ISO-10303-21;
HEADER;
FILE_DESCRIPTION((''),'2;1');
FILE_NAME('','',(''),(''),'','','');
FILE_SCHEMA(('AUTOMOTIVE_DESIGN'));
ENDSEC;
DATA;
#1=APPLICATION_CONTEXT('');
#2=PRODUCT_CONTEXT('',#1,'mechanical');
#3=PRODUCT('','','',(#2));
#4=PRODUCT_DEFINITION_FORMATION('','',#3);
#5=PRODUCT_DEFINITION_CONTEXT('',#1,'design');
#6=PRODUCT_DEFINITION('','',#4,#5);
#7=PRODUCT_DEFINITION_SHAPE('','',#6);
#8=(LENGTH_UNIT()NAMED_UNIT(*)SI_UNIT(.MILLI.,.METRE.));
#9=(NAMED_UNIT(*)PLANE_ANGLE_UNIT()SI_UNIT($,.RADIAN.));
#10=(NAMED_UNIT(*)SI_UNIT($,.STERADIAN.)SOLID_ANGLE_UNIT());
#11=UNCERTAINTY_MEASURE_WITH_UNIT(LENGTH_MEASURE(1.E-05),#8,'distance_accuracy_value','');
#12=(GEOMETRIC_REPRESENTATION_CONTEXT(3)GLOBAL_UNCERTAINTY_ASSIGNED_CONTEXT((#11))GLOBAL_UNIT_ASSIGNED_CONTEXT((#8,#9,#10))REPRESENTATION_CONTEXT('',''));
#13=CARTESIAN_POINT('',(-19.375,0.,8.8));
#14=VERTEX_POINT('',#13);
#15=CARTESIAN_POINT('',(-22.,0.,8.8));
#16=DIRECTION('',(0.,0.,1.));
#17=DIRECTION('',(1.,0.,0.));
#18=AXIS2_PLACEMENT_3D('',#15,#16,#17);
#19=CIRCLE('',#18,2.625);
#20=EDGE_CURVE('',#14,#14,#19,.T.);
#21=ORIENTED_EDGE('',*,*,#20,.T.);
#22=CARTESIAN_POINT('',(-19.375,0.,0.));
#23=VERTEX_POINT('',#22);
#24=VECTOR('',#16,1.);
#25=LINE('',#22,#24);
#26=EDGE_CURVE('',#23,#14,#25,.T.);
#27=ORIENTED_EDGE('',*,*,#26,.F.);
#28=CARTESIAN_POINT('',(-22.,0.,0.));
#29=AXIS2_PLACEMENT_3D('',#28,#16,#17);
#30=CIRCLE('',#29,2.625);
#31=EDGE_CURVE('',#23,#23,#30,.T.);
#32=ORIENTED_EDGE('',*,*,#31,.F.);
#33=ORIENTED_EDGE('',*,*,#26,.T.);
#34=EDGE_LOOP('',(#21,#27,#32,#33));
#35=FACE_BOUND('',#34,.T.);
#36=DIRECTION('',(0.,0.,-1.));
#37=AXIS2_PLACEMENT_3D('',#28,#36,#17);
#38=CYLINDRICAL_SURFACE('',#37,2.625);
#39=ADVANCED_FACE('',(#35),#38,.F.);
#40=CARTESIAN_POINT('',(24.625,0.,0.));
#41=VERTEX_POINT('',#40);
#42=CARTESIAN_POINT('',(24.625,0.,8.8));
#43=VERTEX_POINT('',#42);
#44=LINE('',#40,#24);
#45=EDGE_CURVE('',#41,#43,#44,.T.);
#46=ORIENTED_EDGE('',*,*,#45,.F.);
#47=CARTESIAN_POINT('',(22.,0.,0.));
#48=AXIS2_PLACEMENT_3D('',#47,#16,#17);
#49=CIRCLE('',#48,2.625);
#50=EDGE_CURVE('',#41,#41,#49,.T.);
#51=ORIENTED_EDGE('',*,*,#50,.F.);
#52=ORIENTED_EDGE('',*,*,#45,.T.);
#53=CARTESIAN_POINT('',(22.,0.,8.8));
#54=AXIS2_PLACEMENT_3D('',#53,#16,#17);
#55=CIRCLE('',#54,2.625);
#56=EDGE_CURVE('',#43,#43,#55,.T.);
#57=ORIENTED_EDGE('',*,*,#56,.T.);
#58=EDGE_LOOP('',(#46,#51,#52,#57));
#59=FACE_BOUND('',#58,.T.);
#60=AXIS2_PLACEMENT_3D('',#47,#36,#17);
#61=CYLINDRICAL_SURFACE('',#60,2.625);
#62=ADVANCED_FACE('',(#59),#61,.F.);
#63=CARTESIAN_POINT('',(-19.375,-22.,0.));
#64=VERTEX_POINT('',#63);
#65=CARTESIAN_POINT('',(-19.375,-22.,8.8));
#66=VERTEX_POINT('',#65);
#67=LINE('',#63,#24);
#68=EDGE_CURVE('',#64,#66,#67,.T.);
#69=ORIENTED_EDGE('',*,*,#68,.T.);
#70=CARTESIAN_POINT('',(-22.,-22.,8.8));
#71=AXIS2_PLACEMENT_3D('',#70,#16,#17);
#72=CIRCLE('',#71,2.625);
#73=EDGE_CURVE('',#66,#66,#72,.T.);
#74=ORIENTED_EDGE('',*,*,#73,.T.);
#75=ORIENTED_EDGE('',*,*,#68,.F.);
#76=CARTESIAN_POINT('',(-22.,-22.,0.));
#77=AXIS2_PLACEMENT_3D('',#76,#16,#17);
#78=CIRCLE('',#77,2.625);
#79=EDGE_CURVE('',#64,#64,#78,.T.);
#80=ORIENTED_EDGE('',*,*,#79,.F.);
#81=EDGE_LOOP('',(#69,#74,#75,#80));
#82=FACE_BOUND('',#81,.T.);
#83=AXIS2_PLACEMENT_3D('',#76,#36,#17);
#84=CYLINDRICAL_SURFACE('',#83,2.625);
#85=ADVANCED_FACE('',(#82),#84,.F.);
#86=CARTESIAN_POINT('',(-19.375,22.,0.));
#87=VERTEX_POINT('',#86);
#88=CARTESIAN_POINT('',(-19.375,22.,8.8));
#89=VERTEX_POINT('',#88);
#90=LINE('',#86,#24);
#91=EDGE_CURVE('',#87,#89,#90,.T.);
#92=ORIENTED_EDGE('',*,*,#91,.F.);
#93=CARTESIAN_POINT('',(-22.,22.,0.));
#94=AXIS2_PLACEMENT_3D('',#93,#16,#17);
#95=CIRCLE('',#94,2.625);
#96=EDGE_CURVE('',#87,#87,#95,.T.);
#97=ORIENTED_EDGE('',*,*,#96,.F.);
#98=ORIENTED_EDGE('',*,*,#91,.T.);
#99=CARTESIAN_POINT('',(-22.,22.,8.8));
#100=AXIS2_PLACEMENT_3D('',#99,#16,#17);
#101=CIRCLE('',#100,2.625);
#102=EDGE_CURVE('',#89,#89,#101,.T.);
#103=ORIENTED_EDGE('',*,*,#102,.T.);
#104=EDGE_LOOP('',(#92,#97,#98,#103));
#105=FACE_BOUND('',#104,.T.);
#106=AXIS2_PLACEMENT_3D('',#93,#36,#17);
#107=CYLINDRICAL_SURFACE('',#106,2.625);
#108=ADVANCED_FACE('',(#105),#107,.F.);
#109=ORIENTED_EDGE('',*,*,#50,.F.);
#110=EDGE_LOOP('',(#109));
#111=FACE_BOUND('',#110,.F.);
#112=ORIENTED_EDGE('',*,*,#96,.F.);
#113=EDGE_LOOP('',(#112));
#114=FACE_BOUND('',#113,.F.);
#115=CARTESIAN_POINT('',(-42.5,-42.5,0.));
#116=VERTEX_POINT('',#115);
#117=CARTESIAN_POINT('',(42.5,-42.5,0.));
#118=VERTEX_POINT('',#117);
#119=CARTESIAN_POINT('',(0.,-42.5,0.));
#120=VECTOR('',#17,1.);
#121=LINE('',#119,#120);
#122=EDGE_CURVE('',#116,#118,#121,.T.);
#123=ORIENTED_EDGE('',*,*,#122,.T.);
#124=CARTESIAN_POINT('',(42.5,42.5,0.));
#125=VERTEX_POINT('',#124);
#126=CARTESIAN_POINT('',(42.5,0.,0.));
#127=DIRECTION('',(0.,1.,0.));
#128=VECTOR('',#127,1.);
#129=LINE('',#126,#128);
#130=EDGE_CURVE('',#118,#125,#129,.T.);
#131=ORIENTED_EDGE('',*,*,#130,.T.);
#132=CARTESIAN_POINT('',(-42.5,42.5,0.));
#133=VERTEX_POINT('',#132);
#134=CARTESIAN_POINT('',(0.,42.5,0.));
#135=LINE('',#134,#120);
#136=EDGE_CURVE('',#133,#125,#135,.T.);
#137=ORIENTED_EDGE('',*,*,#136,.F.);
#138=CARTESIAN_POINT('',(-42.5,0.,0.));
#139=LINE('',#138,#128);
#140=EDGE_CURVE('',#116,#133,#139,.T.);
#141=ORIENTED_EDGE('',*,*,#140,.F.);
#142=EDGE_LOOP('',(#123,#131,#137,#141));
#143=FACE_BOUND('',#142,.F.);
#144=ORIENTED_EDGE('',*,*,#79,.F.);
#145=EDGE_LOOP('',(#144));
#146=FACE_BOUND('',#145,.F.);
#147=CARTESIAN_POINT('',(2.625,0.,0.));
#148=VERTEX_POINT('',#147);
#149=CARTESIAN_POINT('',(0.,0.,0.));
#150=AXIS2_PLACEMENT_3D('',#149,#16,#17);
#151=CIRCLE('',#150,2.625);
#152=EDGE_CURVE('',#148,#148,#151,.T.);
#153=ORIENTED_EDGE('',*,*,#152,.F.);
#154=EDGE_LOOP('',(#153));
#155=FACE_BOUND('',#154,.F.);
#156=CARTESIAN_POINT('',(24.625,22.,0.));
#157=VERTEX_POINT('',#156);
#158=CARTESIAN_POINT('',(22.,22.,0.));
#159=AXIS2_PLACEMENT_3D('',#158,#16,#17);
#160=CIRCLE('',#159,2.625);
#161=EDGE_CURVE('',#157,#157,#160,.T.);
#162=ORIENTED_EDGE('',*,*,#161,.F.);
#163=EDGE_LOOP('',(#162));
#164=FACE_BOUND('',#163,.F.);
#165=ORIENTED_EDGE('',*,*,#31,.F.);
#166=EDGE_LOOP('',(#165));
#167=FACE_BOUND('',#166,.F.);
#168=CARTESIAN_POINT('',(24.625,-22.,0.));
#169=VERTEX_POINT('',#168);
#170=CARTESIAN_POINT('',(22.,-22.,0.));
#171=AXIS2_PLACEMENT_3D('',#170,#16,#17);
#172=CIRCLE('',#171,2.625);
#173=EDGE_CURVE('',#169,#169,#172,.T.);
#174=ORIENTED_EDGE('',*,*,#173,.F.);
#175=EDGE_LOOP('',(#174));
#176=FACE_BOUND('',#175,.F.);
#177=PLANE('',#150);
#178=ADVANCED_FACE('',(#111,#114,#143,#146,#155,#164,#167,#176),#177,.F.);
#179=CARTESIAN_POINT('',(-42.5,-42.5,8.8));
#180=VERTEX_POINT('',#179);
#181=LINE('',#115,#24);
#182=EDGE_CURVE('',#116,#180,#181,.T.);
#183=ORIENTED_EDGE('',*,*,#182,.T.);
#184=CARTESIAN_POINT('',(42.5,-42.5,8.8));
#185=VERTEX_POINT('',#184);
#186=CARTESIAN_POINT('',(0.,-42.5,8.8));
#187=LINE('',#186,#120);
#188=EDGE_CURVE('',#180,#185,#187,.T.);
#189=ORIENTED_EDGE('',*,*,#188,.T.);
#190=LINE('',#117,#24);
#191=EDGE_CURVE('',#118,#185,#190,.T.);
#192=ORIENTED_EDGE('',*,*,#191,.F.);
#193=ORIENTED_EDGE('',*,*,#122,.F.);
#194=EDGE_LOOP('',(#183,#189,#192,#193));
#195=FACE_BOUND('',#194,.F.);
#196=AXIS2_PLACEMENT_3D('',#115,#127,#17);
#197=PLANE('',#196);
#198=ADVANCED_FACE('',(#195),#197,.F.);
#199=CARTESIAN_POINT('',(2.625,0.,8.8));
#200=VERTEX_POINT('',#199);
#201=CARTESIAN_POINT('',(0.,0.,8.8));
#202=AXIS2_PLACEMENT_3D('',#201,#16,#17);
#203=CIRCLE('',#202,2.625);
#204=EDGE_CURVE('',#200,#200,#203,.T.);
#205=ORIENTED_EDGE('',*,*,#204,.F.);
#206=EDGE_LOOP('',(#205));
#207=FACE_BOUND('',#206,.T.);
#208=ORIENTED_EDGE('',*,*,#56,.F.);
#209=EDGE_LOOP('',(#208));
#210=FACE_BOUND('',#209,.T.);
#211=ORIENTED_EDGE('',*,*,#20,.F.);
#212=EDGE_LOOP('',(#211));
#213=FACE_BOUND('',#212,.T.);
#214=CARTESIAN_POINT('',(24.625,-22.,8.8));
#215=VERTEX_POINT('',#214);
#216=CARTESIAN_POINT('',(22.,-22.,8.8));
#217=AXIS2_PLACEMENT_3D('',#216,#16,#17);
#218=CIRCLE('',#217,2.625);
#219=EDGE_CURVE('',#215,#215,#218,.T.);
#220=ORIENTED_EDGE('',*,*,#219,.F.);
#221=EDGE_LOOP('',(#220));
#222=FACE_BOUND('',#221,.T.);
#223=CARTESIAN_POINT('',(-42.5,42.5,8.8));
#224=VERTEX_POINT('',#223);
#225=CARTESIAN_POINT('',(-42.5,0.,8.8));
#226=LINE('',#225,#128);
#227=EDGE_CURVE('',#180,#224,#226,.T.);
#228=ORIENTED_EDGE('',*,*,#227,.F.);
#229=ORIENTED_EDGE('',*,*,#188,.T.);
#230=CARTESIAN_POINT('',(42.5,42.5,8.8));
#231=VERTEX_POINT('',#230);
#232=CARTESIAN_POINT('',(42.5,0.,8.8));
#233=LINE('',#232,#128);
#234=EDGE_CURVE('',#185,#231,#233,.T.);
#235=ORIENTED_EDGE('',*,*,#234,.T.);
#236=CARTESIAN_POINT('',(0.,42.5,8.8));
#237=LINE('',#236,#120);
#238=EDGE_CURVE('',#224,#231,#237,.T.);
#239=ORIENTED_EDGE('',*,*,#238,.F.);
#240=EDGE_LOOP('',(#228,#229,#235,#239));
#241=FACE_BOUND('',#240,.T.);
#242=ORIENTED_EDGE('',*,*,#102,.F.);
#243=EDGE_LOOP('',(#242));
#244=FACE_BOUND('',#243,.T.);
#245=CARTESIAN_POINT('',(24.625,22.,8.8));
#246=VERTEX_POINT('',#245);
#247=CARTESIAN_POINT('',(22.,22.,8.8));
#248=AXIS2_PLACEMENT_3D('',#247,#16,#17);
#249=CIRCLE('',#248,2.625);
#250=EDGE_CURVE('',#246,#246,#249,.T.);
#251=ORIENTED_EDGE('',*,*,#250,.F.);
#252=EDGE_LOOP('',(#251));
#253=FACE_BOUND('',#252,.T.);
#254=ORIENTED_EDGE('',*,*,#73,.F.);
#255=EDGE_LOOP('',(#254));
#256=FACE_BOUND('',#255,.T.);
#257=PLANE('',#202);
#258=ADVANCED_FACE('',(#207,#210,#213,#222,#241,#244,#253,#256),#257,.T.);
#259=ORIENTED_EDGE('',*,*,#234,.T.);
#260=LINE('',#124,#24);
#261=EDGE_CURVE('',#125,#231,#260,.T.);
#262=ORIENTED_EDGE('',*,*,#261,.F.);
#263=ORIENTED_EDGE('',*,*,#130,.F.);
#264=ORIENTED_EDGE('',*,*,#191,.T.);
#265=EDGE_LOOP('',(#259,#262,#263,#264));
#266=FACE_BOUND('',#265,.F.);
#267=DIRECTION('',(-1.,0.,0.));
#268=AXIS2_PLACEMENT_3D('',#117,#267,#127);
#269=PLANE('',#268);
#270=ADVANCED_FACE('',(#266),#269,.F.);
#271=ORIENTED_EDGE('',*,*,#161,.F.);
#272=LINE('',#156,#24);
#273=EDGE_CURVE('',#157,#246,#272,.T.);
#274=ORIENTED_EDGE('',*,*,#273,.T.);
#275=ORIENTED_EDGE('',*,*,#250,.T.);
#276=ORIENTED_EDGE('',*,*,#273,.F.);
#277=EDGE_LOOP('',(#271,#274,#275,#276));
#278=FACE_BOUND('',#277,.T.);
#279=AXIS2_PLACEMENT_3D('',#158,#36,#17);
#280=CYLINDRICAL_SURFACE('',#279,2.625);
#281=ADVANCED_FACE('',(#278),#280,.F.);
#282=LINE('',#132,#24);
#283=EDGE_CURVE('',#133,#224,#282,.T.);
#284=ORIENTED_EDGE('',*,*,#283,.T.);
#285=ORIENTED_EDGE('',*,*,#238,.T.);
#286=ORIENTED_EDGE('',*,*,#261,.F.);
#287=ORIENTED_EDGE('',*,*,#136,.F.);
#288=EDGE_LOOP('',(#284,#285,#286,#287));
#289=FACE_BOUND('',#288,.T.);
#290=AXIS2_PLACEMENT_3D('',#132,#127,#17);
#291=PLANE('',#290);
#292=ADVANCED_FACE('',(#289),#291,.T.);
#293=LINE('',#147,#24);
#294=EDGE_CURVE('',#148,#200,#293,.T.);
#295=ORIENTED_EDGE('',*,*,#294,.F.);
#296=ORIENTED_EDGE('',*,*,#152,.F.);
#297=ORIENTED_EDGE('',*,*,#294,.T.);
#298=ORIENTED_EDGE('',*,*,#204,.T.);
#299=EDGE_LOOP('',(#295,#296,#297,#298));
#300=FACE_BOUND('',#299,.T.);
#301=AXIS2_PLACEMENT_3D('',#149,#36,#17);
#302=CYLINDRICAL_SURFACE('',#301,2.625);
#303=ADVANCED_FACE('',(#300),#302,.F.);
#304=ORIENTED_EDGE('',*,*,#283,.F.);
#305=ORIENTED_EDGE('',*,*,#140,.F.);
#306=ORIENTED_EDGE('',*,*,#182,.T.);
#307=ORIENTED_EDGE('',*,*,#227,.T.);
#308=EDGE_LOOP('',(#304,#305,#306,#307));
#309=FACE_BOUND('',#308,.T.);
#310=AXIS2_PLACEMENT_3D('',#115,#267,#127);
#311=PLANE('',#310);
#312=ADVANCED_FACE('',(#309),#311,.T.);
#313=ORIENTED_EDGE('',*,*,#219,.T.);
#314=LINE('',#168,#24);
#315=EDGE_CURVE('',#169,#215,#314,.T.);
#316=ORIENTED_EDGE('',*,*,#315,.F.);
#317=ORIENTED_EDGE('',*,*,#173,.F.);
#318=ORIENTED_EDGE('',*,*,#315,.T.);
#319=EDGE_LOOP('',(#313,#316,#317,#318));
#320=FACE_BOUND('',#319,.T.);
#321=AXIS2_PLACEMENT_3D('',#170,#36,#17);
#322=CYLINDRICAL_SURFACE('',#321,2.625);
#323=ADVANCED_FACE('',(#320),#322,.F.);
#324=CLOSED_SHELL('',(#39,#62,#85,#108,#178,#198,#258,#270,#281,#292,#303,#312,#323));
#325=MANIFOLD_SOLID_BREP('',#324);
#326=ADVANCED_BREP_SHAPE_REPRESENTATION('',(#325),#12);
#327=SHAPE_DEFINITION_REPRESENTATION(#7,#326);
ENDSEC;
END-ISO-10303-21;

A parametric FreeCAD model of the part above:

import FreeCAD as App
import Part
import Sketcher
from FreeCAD import Vector
Q = App.Units.Quantity


def add_polygon(sketch, points):
    """Adds a closed chain of lines whose ends are joined by coincident constraints."""
    first, n = sketch.GeometryCount, len(points)
    for a, b in zip(points, points[1:] + points[:1]):
        sketch.addGeometry(Part.LineSegment(App.Vector(*a, 0), App.Vector(*b, 0)), False)
    for i in range(n):
        sketch.addConstraint(Sketcher.Constraint("Coincident", first + i, 2, first + (i + 1) % n, 1))

doc = App.newDocument("Part")
params = doc.addObject("Spreadsheet::Sheet", "Params")
for row, (alias, value) in enumerate([
    ("sketch1_diameter", "5.25 mm"),
    ("sketch1_width", "85 mm"),
    ("pad1_length", "8.8 mm"),
], start=1):
    params.set(f"A{row}", alias)
    params.set(f"B{row}", "=" + value)
    params.setAlias(f"B{row}", alias)

body = doc.addObject("PartDesign::Body", "Body")

sketch1 = body.newObject("Sketcher::SketchObject", "Sketch")
sketch1.AttachmentSupport = (doc.getObject("XY_Plane"), [""])
sketch1.MapMode = "FlatFace"
add_polygon(sketch1, [(-42.5, 42.5), (-42.5, -42.5), (42.5, -42.5), (42.5, 42.5)])
sketch1.addGeometry(Part.Circle(Vector(-22, -22, 0), Vector(0, 0, 1), 2.625), False)
sketch1.addGeometry(Part.Circle(Vector(-22, 0, 0), Vector(0, 0, 1), 2.625), False)
sketch1.addGeometry(Part.Circle(Vector(0, 0, 0), Vector(0, 0, 1), 2.625), False)
sketch1.addGeometry(Part.Circle(Vector(22, -22, 0), Vector(0, 0, 1), 2.625), False)
sketch1.addGeometry(Part.Circle(Vector(22, 0, 0), Vector(0, 0, 1), 2.625), False)
sketch1.addGeometry(Part.Circle(Vector(-22, 22, 0), Vector(0, 0, 1), 2.625), False)
sketch1.addGeometry(Part.Circle(Vector(22, 22, 0), Vector(0, 0, 1), 2.625), False)
sketch1.addConstraint(Sketcher.Constraint("Vertical", 0))
sketch1.addConstraint(Sketcher.Constraint("Horizontal", 1))
sketch1.addConstraint(Sketcher.Constraint("Vertical", 2))
sketch1.addConstraint(Sketcher.Constraint("Horizontal", 3))
sketch1.addConstraint(Sketcher.Constraint("Coincident", 6, 3, -1, 1))
sketch1.addConstraint(Sketcher.Constraint("Equal", 4, 5))
sketch1.addConstraint(Sketcher.Constraint("Equal", 5, 6))
sketch1.addConstraint(Sketcher.Constraint("Equal", 6, 7))
sketch1.addConstraint(Sketcher.Constraint("Equal", 7, 8))
sketch1.addConstraint(Sketcher.Constraint("Equal", 8, 9))
sketch1.addConstraint(Sketcher.Constraint("Equal", 9, 10))
sketch1.addConstraint(Sketcher.Constraint("Symmetric", 5, 3, 8, 3, -1, 1))
sketch1.addConstraint(Sketcher.Constraint("Symmetric", 7, 3, 9, 3, -1, 1))
sketch1.addConstraint(Sketcher.Constraint("Symmetric", 4, 3, 10, 3, -1, 1))
sketch1.addConstraint(Sketcher.Constraint("Symmetric", 0, 2, 2, 2, -1, 1))
sketch1.addConstraint(Sketcher.Constraint("Symmetric", 4, 3, 7, 3, -2))
sketch1.addConstraint(Sketcher.Constraint("PointOnObject", 5, 3, -1))
sketch1.addConstraint(Sketcher.Constraint("Vertical", 4, 3, 5, 3))
sketch1.addConstraint(Sketcher.Constraint("Equal", 3, 0))
sketch1.addConstraint(Sketcher.Constraint("Diameter", 4, Q("5.25 mm")))
sketch1.addConstraint(Sketcher.Constraint("DistanceX", 1, 1, 1, 2, Q("85 mm")))
sketch1.addConstraint(Sketcher.Constraint("DistanceX", 4, 3, -1, 1, Q("22 mm")))
sketch1.addConstraint(Sketcher.Constraint("DistanceY", 4, 3, -1, 1, Q("22 mm")))
sketch1.setExpression("Constraints[23]", "Params.sketch1_diameter")
sketch1.setExpression("Constraints[24]", "Params.sketch1_width")
pad1 = body.newObject("PartDesign::Pad", "Pad")
pad1.Profile = sketch1
pad1.setExpression("Length", "Params.pad1_length")

doc.recompute()
